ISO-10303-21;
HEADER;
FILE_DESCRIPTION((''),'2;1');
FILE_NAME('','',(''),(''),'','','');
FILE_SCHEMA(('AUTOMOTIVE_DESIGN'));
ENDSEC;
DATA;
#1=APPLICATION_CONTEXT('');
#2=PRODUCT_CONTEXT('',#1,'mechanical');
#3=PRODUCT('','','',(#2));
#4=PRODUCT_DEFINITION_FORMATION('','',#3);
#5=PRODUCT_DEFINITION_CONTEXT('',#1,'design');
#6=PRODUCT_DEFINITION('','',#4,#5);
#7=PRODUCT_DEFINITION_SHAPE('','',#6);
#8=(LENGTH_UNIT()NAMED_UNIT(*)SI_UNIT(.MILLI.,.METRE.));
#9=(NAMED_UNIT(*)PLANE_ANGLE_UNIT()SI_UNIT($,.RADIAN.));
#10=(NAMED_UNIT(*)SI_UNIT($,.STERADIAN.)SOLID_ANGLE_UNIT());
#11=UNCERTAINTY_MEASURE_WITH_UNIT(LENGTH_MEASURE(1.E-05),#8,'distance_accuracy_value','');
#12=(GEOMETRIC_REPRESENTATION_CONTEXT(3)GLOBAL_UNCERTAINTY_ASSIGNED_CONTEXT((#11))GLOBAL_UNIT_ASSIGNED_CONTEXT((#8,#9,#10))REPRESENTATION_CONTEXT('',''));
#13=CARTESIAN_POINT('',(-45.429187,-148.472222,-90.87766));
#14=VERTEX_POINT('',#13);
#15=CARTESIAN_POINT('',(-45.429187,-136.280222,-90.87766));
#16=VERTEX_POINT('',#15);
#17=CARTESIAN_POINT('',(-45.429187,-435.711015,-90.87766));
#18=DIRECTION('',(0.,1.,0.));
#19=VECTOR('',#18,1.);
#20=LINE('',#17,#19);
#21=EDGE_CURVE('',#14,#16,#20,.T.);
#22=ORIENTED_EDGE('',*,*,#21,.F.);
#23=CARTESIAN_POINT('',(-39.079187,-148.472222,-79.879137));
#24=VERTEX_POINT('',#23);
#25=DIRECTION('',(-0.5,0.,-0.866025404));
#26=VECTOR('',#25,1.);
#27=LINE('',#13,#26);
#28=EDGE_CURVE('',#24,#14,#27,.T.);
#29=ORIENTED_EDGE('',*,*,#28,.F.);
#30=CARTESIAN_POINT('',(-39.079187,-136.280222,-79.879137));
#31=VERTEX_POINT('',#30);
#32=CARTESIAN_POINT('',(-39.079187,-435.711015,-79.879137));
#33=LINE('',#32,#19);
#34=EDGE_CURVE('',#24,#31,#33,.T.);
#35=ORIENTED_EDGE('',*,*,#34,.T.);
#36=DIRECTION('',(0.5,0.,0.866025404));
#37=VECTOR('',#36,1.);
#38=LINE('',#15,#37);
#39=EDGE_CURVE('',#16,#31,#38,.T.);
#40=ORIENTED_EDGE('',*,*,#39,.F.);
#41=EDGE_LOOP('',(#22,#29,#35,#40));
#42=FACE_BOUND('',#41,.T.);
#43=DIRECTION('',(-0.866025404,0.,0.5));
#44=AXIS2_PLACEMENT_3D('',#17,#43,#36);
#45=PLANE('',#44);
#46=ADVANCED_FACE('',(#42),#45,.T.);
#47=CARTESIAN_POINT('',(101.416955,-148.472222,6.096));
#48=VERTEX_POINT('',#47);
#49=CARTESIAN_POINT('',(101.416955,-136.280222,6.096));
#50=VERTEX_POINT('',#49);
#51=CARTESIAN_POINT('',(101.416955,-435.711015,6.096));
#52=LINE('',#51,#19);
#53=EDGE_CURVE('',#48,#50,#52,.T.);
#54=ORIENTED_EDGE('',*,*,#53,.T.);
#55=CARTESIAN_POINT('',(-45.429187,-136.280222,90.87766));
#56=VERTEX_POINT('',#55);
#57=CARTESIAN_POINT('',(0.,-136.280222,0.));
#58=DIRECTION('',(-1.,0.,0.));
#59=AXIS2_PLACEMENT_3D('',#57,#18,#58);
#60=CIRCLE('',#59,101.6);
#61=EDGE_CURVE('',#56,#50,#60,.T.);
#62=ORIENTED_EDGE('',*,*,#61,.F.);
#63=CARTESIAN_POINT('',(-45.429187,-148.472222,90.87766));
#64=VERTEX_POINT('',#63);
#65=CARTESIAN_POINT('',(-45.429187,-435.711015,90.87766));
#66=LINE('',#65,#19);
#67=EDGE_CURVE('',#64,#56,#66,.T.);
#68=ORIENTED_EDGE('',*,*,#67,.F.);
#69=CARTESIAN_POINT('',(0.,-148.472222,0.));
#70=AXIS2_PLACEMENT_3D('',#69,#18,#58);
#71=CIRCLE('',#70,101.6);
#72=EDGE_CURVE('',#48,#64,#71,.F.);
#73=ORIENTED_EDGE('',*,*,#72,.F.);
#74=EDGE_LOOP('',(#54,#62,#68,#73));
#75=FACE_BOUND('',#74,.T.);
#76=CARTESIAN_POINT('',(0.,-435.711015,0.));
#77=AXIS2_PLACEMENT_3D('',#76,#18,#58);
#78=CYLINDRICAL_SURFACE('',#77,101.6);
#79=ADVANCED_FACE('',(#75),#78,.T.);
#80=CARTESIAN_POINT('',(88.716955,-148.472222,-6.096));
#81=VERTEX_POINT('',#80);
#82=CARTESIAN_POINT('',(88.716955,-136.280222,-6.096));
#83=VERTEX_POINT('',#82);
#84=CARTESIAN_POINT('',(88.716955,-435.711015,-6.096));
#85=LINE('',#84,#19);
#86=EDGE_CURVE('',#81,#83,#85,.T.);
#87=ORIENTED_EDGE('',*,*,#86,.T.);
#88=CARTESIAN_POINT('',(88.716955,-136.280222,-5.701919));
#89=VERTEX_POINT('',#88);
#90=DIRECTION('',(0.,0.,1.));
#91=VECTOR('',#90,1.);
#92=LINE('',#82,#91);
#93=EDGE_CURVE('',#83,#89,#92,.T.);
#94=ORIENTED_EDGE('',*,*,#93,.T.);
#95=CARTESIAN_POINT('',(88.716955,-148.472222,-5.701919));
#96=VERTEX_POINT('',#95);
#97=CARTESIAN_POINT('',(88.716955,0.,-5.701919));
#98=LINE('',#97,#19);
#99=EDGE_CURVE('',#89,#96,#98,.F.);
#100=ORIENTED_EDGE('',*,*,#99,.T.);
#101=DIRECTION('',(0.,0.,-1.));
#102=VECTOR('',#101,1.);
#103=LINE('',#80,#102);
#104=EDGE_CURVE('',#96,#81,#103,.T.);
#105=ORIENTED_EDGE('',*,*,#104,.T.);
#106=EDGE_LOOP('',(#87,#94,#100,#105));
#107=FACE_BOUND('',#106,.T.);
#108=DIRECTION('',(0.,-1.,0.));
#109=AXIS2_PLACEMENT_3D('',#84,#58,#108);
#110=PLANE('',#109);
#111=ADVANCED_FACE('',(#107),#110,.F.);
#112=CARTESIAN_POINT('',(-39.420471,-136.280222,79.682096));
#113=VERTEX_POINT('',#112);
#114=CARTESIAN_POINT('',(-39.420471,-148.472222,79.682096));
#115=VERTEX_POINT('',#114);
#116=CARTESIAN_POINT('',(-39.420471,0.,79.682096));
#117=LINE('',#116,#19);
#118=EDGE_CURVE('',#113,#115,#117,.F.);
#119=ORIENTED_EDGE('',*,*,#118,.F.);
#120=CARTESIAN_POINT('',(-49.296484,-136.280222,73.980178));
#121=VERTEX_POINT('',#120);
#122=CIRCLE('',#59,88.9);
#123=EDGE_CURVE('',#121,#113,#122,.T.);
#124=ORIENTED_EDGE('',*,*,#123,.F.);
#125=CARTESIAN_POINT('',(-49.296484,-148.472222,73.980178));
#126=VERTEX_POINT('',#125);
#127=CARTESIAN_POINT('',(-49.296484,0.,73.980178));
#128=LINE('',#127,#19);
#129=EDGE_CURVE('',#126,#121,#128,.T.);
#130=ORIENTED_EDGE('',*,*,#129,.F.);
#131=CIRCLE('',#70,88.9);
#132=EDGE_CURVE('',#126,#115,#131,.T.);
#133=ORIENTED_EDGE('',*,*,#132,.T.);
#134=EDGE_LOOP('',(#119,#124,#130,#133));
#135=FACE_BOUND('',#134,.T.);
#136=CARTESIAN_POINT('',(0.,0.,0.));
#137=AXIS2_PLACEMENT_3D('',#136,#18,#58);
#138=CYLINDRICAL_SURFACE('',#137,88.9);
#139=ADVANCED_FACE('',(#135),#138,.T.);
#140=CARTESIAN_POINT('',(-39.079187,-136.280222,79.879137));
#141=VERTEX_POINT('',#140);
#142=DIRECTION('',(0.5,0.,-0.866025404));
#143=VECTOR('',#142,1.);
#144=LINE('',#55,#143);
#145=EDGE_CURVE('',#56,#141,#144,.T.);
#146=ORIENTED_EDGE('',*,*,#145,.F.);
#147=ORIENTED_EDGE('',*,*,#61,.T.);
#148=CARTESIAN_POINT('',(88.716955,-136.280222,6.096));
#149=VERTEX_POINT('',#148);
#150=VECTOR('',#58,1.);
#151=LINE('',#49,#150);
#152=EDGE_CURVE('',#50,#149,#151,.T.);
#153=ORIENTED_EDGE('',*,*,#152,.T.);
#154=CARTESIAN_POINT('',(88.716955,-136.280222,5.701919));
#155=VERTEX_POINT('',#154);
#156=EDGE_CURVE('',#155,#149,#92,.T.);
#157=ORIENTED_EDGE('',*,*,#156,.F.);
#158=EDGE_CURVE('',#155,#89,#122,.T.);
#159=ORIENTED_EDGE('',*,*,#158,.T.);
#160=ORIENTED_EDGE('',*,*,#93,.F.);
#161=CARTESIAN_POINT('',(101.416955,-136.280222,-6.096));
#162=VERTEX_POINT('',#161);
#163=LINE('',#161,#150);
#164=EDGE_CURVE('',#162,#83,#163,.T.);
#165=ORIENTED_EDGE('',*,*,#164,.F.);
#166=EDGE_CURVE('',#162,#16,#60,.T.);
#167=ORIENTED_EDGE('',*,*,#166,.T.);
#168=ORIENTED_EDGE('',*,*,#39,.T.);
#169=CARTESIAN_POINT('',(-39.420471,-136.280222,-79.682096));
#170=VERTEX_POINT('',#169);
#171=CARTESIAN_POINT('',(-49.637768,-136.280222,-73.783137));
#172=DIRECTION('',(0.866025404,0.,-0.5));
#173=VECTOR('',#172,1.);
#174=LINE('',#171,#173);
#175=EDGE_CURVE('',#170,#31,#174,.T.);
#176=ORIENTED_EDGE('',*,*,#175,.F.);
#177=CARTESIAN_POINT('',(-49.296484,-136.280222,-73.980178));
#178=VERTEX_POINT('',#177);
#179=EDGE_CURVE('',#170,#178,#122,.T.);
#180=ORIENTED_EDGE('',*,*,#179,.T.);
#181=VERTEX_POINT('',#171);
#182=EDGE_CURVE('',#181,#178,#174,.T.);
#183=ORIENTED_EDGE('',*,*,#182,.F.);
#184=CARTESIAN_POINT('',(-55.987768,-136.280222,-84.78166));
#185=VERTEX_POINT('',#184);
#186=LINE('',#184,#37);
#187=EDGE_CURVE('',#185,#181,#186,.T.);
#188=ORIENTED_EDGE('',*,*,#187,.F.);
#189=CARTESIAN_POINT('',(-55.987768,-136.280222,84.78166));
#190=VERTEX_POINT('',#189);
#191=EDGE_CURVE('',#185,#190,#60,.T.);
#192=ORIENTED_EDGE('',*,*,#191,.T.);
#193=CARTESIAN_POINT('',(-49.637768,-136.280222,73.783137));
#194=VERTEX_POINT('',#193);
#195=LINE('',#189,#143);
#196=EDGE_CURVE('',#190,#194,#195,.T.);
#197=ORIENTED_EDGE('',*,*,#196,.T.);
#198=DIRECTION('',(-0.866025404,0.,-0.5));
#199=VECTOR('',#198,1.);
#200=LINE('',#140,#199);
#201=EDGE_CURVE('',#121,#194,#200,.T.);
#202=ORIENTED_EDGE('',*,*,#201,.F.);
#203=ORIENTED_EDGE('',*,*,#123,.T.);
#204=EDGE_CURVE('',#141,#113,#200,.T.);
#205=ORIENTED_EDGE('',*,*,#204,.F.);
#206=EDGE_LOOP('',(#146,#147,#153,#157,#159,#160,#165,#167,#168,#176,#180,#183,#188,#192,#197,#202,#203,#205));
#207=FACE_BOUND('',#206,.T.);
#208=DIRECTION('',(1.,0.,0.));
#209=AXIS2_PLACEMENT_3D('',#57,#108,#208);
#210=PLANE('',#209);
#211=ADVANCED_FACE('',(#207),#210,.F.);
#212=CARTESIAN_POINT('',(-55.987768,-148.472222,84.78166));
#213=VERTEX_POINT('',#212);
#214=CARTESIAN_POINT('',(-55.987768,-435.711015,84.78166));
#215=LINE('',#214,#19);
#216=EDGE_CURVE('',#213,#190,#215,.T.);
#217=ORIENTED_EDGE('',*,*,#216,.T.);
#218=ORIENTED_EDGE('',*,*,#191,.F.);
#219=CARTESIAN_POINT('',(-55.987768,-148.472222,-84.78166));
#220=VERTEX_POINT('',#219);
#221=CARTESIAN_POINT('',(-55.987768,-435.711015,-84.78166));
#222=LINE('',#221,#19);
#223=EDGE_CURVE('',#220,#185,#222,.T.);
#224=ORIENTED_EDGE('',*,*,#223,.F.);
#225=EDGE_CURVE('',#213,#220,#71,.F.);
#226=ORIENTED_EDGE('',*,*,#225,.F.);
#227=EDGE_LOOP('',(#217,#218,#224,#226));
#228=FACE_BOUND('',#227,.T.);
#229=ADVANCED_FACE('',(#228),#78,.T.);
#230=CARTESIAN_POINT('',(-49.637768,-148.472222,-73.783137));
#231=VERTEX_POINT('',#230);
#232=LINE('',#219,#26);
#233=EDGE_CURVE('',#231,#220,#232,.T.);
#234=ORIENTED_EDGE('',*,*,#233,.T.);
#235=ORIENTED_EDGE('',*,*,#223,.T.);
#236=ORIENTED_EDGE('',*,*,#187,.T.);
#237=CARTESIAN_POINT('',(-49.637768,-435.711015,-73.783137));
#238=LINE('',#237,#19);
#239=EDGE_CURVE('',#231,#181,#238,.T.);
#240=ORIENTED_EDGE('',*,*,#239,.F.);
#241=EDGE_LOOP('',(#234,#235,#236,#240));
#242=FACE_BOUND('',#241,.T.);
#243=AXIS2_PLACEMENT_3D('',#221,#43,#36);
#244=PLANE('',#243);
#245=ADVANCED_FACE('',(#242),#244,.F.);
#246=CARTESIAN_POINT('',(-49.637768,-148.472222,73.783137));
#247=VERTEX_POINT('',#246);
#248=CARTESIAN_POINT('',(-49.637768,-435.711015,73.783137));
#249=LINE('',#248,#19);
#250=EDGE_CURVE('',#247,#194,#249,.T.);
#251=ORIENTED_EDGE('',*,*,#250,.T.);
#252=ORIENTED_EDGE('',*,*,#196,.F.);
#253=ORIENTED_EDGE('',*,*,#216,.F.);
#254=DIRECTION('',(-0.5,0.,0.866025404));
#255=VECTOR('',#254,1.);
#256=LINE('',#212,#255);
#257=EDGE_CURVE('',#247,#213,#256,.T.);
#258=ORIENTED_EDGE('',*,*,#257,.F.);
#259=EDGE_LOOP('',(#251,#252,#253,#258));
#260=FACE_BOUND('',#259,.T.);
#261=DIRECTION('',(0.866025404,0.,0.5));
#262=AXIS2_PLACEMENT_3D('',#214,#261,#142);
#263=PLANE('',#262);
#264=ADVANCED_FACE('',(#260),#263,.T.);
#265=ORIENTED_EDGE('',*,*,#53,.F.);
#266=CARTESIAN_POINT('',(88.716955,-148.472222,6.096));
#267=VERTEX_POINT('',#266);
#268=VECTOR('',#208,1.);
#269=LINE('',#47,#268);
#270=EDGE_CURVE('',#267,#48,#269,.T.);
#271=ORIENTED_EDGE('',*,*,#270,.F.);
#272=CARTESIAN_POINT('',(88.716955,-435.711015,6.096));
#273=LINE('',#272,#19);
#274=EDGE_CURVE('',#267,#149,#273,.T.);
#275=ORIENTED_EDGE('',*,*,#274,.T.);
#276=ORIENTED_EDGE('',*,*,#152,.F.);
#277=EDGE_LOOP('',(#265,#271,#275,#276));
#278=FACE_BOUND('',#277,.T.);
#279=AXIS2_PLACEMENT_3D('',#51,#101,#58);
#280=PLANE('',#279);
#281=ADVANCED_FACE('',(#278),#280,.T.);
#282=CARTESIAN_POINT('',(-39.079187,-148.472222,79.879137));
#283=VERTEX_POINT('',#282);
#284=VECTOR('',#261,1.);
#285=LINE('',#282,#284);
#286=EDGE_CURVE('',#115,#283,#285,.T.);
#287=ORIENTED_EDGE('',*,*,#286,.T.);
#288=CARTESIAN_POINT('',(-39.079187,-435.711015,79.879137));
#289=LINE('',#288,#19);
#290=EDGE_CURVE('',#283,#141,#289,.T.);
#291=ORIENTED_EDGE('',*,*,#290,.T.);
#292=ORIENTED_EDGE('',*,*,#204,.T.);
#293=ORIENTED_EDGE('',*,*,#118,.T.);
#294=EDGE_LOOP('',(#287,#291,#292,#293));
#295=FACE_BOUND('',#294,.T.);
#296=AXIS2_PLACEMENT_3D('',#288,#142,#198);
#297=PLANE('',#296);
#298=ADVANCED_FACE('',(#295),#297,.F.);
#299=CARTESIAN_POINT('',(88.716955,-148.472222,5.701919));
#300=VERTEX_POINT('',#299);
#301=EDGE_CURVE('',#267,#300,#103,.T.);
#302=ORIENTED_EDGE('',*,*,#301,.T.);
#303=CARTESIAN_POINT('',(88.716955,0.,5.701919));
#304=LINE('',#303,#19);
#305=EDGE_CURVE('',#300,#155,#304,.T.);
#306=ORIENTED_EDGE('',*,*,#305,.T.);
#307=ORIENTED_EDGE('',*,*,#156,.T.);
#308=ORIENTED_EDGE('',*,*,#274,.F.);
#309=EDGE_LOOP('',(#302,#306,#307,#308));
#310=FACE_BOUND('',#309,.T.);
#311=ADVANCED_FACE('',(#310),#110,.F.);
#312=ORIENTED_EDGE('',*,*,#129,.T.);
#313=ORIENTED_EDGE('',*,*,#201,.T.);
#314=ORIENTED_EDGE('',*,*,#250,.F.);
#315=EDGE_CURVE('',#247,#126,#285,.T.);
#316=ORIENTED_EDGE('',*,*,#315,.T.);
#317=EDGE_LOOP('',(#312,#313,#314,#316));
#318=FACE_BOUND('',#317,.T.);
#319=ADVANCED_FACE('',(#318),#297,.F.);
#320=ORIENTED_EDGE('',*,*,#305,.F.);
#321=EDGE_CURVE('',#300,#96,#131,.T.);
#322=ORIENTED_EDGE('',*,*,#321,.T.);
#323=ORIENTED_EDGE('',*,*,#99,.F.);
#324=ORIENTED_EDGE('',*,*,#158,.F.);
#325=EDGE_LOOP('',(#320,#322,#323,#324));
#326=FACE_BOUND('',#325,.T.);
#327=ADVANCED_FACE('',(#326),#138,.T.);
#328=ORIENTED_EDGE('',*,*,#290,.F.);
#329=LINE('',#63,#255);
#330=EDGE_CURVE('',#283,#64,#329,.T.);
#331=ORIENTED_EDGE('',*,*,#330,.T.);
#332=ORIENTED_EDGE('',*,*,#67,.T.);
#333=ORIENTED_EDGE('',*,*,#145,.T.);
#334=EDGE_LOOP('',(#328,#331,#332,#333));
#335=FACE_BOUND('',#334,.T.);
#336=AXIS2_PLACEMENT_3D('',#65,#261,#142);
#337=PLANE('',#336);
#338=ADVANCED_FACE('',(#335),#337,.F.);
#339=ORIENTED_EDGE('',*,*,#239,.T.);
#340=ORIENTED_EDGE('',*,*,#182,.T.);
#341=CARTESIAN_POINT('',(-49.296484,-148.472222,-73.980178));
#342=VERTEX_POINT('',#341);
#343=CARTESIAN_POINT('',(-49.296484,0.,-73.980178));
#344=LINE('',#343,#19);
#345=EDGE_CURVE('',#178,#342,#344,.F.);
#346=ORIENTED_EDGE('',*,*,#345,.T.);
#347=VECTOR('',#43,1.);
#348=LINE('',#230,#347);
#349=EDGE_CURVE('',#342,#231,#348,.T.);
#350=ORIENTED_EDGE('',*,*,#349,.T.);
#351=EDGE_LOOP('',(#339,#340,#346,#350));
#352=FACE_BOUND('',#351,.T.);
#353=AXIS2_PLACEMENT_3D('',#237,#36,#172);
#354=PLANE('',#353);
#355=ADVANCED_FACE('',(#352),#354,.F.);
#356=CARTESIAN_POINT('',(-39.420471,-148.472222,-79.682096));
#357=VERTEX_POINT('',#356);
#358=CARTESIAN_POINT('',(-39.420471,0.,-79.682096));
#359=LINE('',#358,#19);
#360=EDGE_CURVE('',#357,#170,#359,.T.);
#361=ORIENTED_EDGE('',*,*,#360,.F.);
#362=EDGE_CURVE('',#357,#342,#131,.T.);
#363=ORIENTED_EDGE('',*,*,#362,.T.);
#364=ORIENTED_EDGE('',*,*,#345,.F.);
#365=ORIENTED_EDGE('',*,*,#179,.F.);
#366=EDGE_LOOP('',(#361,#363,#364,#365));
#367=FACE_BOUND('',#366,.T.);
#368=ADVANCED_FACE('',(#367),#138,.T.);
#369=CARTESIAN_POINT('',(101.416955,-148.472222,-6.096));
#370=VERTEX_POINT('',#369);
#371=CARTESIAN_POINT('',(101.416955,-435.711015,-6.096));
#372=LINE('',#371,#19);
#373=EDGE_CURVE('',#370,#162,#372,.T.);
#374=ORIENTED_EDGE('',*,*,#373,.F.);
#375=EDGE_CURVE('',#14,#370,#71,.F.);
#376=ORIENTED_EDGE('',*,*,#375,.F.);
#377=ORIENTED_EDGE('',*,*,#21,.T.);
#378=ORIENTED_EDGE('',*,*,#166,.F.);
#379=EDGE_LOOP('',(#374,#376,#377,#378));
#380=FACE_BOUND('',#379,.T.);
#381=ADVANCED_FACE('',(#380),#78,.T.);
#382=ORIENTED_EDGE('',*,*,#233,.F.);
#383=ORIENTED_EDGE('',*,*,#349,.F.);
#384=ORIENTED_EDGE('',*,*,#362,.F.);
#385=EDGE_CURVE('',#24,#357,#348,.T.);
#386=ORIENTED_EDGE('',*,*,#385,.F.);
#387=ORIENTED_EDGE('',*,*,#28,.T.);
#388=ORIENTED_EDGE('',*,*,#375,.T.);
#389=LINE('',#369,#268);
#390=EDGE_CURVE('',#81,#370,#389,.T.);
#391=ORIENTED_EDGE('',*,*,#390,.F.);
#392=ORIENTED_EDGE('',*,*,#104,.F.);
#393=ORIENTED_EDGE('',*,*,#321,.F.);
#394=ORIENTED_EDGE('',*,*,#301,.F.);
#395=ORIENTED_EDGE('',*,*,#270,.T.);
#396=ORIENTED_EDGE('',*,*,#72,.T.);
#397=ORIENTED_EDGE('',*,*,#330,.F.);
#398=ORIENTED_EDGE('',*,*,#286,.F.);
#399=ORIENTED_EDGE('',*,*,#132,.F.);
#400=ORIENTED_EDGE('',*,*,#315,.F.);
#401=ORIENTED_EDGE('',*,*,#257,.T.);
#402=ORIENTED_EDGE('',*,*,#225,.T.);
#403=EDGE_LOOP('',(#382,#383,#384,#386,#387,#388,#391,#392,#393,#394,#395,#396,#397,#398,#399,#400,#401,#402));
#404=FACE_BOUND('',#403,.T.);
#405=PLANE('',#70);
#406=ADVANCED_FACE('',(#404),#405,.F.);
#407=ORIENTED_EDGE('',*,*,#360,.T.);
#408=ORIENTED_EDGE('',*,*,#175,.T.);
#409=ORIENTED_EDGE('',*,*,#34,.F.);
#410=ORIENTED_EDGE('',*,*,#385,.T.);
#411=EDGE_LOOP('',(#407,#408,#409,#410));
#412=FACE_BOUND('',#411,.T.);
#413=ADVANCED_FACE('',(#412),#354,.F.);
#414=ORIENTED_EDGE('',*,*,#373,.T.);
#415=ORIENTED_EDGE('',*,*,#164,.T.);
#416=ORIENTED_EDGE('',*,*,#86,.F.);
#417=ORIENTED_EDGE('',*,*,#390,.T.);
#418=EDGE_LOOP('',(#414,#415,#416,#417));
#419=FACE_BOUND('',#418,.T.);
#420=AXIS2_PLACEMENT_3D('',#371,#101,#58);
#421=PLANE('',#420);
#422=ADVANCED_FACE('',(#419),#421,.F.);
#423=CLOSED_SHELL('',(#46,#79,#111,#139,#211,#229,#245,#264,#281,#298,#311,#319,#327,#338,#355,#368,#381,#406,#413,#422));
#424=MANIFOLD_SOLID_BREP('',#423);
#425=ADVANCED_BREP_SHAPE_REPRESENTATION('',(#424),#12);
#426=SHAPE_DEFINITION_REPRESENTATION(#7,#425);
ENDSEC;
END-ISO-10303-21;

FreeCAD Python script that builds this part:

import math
import FreeCAD as App
import Part
import Sketcher
from FreeCAD import Vector
Q = App.Units.Quantity


def add_polygon(sketch, points):
    """Adds a closed chain of lines whose ends are joined by coincident constraints."""
    first, n = sketch.GeometryCount, len(points)
    for a, b in zip(points, points[1:] + points[:1]):
        sketch.addGeometry(Part.LineSegment(App.Vector(*a, 0), App.Vector(*b, 0)), False)
    for i in range(n):
        sketch.addConstraint(Sketcher.Constraint("Coincident", first + i, 2, first + (i + 1) % n, 1))

doc = App.newDocument("Part")
body = doc.addObject("PartDesign::Body", "Body")

sketch1 = body.newObject("Sketcher::SketchObject", "Sketch")
sketch1.AttachmentSupport = (doc.getObject("XY_Plane"), [""])
sketch1.MapMode = "FlatFace"
add_polygon(sketch1, [(0, -136), (0, -148), (89, -148), (89, -136)])
sketch1.addConstraint(Sketcher.Constraint("Vertical", 0))
sketch1.addConstraint(Sketcher.Constraint("Horizontal", 1))
sketch1.addConstraint(Sketcher.Constraint("Vertical", 2))
sketch1.addConstraint(Sketcher.Constraint("Horizontal", 3))
sketch1.addConstraint(Sketcher.Constraint("PointOnObject", 0, 2, -2))
sketch1.addConstraint(Sketcher.Constraint("DistanceX", 1, 1, 1, 2, Q("3.5 in")))
sketch1.addConstraint(Sketcher.Constraint("DistanceY", 0, 2, 0, 1, Q("0.48 in")))
sketch1.addConstraint(Sketcher.Constraint("DistanceY", 0, 2, -1, 1, Q("148.472222 mm")))
revolution = body.newObject("PartDesign::Revolution", "Revolution")
revolution.Profile = sketch1
revolution.ReferenceAxis = (sketch1, ["V_Axis"])
revolution.Angle = 360

sketch2 = body.newObject("Sketcher::SketchObject", "Sketch001")
sketch2.AttachmentSupport = (doc.getObject("XZ_Plane"), [""])
sketch2.MapMode = "FlatFace"
sketch2.AttachmentOffset = App.Placement(Vector(0, 0, 136.280222), App.Rotation())
sketch2.addGeometry(Part.LineSegment(Vector(89, -6, 0), Vector(101, -6, 0)), False)
sketch2.addGeometry(Part.ArcOfCircle(Part.Circle(Vector(0, 0, 0), Vector(0, 0, 1), 102), math.radians(-117), math.radians(-3)), False)
sketch2.addGeometry(Part.LineSegment(Vector(-45, -91, 0), Vector(-39, -80, 0)), False)
sketch2.addGeometry(Part.LineSegment(Vector(-39, -80, 0), Vector(-50, -74, 0)), False)
sketch2.addGeometry(Part.LineSegment(Vector(-50, -74, 0), Vector(-56, -85, 0)), False)
sketch2.addGeometry(Part.ArcOfCircle(Part.Circle(Vector(0, 0, 0), Vector(0, 0, 1), 102), math.radians(123), math.radians(237)), False)
sketch2.addGeometry(Part.LineSegment(Vector(-56, 85, 0), Vector(-50, 74, 0)), False)
sketch2.addGeometry(Part.LineSegment(Vector(-50, 74, 0), Vector(-39, 80, 0)), False)
sketch2.addGeometry(Part.LineSegment(Vector(-39, 80, 0), Vector(-45, 91, 0)), False)
sketch2.addGeometry(Part.ArcOfCircle(Part.Circle(Vector(0, 0, 0), Vector(0, 0, 1), 102), math.radians(3), math.radians(117)), False)
sketch2.addGeometry(Part.LineSegment(Vector(101, 6, 0), Vector(89, 6, 0)), False)
sketch2.addGeometry(Part.LineSegment(Vector(89, 6, 0), Vector(89, -6, 0)), False)
sketch2.addConstraint(Sketcher.Constraint("Coincident", 0, 2, 1, 2))
sketch2.addConstraint(Sketcher.Constraint("Coincident", 1, 1, 2, 1))
sketch2.addConstraint(Sketcher.Constraint("Coincident", 2, 2, 3, 1))
sketch2.addConstraint(Sketcher.Constraint("Coincident", 3, 2, 4, 1))
sketch2.addConstraint(Sketcher.Constraint("Coincident", 4, 2, 5, 2))
sketch2.addConstraint(Sketcher.Constraint("Coincident", 5, 1, 6, 1))
sketch2.addConstraint(Sketcher.Constraint("Coincident", 6, 2, 7, 1))
sketch2.addConstraint(Sketcher.Constraint("Coincident", 7, 2, 8, 1))
sketch2.addConstraint(Sketcher.Constraint("Coincident", 8, 2, 9, 2))
sketch2.addConstraint(Sketcher.Constraint("Coincident", 9, 1, 10, 1))
sketch2.addConstraint(Sketcher.Constraint("Coincident", 10, 2, 11, 1))
sketch2.addConstraint(Sketcher.Constraint("Coincident", 11, 2, 0, 1))
sketch2.addConstraint(Sketcher.Constraint("Horizontal", 0))
sketch2.addConstraint(Sketcher.Constraint("Horizontal", 10))
sketch2.addConstraint(Sketcher.Constraint("Vertical", 11))
sketch2.addConstraint(Sketcher.Constraint("Coincident", 1, 3, -1, 1))
sketch2.addConstraint(Sketcher.Constraint("Coincident", 5, 3, -1, 1))
sketch2.addConstraint(Sketcher.Constraint("Coincident", 9, 3, -1, 1))
sketch2.addConstraint(Sketcher.Constraint("Equal", 1, 5))
sketch2.addConstraint(Sketcher.Constraint("Equal", 5, 9))
sketch2.addConstraint(Sketcher.Constraint("Symmetric", 3, 2, 6, 2, -1))
sketch2.addConstraint(Sketcher.Constraint("Symmetric", 2, 2, 7, 2, -1))
sketch2.addConstraint(Sketcher.Constraint("Perpendicular", 2, 3))
sketch2.addConstraint(Sketcher.Constraint("Perpendicular", 3, 4))
sketch2.addConstraint(Sketcher.Constraint("Perpendicular", 6, 7))
sketch2.addConstraint(Sketcher.Constraint("Perpendicular", 7, 8))
sketch2.addConstraint(Sketcher.Constraint("Vertical", 0, 2, 9, 1))
sketch2.addConstraint(Sketcher.Constraint("Equal", 2, 4))
sketch2.addConstraint(Sketcher.Constraint("Radius", 1, Q("4 in")))
sketch2.addConstraint(Sketcher.Constraint("DistanceX", 0, 1, 0, 2, Q("0.5 in")))
sketch2.addConstraint(Sketcher.Constraint("Angle", 2, Q("60 deg")))
sketch2.addConstraint(Sketcher.Constraint("Distance", 2, Q("0.5 in")))
sketch2.addConstraint(Sketcher.Constraint("DistanceY", 11, 2, 11, 1, Q("0.48 in")))
sketch2.addConstraint(Sketcher.Constraint("Distance", 3, Q("0.48 in")))
pad1 = body.newObject("PartDesign::Pad", "Pad")
pad1.Profile = sketch2
pad1.Length = Q("0.48 in")

doc.recompute()
